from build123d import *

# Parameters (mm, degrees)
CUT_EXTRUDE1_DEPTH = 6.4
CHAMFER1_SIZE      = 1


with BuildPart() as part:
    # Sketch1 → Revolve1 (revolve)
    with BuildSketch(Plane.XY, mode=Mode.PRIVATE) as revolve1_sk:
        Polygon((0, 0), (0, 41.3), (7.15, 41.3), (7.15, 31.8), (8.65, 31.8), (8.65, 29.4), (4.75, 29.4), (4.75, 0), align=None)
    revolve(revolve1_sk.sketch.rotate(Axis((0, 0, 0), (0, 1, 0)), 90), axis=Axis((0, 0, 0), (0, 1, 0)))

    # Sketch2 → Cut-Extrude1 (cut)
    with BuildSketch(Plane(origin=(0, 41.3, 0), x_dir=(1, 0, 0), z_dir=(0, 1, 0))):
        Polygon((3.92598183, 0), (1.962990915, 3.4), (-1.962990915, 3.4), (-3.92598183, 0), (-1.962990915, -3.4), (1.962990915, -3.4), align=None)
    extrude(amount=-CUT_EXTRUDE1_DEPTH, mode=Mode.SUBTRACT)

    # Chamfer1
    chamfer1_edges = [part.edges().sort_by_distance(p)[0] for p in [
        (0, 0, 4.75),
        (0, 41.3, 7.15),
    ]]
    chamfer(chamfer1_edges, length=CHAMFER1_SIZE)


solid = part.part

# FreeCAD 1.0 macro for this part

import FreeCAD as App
import Part
import Sketcher
from FreeCAD import Vector
Q = App.Units.Quantity


def edges_at(feature, points):
    """Names of the edges that pass closest to the given points."""
    edges = feature.Shape.Edges
    near = lambda p: min(range(len(edges)), key=lambda i: edges[i].distToShape(Part.Vertex(*p))[0])
    return sorted({f"Edge{near(p) + 1}" for p in points})

doc = App.newDocument("Part")
body = doc.addObject("PartDesign::Body", "Body")

sketch1 = body.newObject("Sketcher::SketchObject", "Sketch")
sketch1.AttachmentSupport = (doc.getObject("XY_Plane"), [""])
sketch1.MapMode = "FlatFace"
sketch1.addGeometry([
    Part.LineSegment(Vector(0, 41.3, 0), Vector(0, 0, 0)),
    Part.LineSegment(Vector(0, 0, 0), Vector(4.8, 0, 0)),
    Part.LineSegment(Vector(4.8, 0, 0), Vector(4.8, 29.4, 0)),
    Part.LineSegment(Vector(4.8, 29.4, 0), Vector(8.7, 29.4, 0)),
    Part.LineSegment(Vector(8.7, 29.4, 0), Vector(8.7, 31.8, 0)),
    Part.LineSegment(Vector(8.7, 31.8, 0), Vector(7.2, 31.8, 0)),
    Part.LineSegment(Vector(7.2, 31.8, 0), Vector(7.2, 41.3, 0)),
    Part.LineSegment(Vector(7.2, 41.3, 0), Vector(0, 41.3, 0)),
], False)
sketch1.addConstraint([
    Sketcher.Constraint("Coincident", 0, 2, 1, 1),
    Sketcher.Constraint("Coincident", 1, 2, 2, 1),
    Sketcher.Constraint("Coincident", 2, 2, 3, 1),
    Sketcher.Constraint("Coincident", 3, 2, 4, 1),
    Sketcher.Constraint("Coincident", 4, 2, 5, 1),
    Sketcher.Constraint("Coincident", 5, 2, 6, 1),
    Sketcher.Constraint("Coincident", 6, 2, 7, 1),
    Sketcher.Constraint("Coincident", 7, 2, 0, 1),
    Sketcher.Constraint("Vertical", 0),
    Sketcher.Constraint("Horizontal", 1),
    Sketcher.Constraint("Vertical", 2),
    Sketcher.Constraint("Horizontal", 3),
    Sketcher.Constraint("Vertical", 4),
    Sketcher.Constraint("Horizontal", 5),
    Sketcher.Constraint("Vertical", 6),
    Sketcher.Constraint("Horizontal", 7),
    Sketcher.Constraint("Coincident", 0, 2, -1, 1),
    Sketcher.Constraint("DistanceX", 3, 1, 3, 2, Q("3.9 mm")),
    Sketcher.Constraint("DistanceX", 5, 2, 5, 1, Q("1.5 mm")),
    Sketcher.Constraint("DistanceY", 0, 2, 0, 1, Q("41.3 mm")),
    Sketcher.Constraint("DistanceY", 2, 1, 2, 2, Q("29.4 mm")),
    Sketcher.Constraint("DistanceY", 4, 1, 4, 2, Q("2.4 mm")),
    Sketcher.Constraint("DistanceX", 1, 1, 1, 2, Q("4.75 mm")),
])
revolution = body.newObject("PartDesign::Revolution", "Revolution")
revolution.Profile = sketch1
revolution.ReferenceAxis = (sketch1, ["V_Axis"])
revolution.Angle = 360

sketch2 = body.newObject("Sketcher::SketchObject", "Sketch001")
sketch2.AttachmentSupport = (doc.getObject("XZ_Plane"), [""])
sketch2.MapMode = "FlatFace"
sketch2.AttachmentOffset = App.Placement(Vector(0, 0, -41.3), App.Rotation())
sketch2.addGeometry([
    Part.LineSegment(Vector(3.9, 0, 0), Vector(2, -3.4, 0)),
    Part.LineSegment(Vector(2, -3.4, 0), Vector(-2, -3.4, 0)),
    Part.LineSegment(Vector(-2, -3.4, 0), Vector(-3.9, 0, 0)),
    Part.LineSegment(Vector(-3.9, 0, 0), Vector(-2, 3.4, 0)),
    Part.LineSegment(Vector(-2, 3.4, 0), Vector(2, 3.4, 0)),
    Part.LineSegment(Vector(2, 3.4, 0), Vector(3.9, 0, 0)),
], False)
sketch2.addConstraint([
    Sketcher.Constraint("Coincident", 0, 2, 1, 1),
    Sketcher.Constraint("Coincident", 1, 2, 2, 1),
    Sketcher.Constraint("Coincident", 2, 2, 3, 1),
    Sketcher.Constraint("Coincident", 3, 2, 4, 1),
    Sketcher.Constraint("Coincident", 4, 2, 5, 1),
    Sketcher.Constraint("Coincident", 5, 2, 0, 1),
    Sketcher.Constraint("Horizontal", 1),
    Sketcher.Constraint("Horizontal", 4),
    Sketcher.Constraint("Symmetric", 0, 2, 3, 2, -1, 1),
    Sketcher.Constraint("Symmetric", 2, 2, 5, 2, -1, 1),
    Sketcher.Constraint("PointOnObject", 2, 2, -1),
    Sketcher.Constraint("Parallel", 2, 5),
    Sketcher.Constraint("Vertical", 1, 2, 3, 2),
    Sketcher.Constraint("Angle", 0, Q("-120 deg")),
    Sketcher.Constraint("DistanceY", 0, 2, -1, 1, Q("3.4 mm")),
    Sketcher.Constraint("DistanceX", 1, 2, 1, 1, Q("3.925982 mm")),
])
pocket1 = body.newObject("PartDesign::Pocket", "Pocket")
pocket1.Profile = sketch2
pocket1.Length = 6.4
pocket1.Reversed = True
doc.recompute()

chamfer = body.newObject("PartDesign::Chamfer", "Chamfer")
chamfer.Base = (pocket1, edges_at(pocket1, [(0, 0, 4.75), (0, 41.3, 7.15)]))
chamfer.Size = 1

doc.recompute()
